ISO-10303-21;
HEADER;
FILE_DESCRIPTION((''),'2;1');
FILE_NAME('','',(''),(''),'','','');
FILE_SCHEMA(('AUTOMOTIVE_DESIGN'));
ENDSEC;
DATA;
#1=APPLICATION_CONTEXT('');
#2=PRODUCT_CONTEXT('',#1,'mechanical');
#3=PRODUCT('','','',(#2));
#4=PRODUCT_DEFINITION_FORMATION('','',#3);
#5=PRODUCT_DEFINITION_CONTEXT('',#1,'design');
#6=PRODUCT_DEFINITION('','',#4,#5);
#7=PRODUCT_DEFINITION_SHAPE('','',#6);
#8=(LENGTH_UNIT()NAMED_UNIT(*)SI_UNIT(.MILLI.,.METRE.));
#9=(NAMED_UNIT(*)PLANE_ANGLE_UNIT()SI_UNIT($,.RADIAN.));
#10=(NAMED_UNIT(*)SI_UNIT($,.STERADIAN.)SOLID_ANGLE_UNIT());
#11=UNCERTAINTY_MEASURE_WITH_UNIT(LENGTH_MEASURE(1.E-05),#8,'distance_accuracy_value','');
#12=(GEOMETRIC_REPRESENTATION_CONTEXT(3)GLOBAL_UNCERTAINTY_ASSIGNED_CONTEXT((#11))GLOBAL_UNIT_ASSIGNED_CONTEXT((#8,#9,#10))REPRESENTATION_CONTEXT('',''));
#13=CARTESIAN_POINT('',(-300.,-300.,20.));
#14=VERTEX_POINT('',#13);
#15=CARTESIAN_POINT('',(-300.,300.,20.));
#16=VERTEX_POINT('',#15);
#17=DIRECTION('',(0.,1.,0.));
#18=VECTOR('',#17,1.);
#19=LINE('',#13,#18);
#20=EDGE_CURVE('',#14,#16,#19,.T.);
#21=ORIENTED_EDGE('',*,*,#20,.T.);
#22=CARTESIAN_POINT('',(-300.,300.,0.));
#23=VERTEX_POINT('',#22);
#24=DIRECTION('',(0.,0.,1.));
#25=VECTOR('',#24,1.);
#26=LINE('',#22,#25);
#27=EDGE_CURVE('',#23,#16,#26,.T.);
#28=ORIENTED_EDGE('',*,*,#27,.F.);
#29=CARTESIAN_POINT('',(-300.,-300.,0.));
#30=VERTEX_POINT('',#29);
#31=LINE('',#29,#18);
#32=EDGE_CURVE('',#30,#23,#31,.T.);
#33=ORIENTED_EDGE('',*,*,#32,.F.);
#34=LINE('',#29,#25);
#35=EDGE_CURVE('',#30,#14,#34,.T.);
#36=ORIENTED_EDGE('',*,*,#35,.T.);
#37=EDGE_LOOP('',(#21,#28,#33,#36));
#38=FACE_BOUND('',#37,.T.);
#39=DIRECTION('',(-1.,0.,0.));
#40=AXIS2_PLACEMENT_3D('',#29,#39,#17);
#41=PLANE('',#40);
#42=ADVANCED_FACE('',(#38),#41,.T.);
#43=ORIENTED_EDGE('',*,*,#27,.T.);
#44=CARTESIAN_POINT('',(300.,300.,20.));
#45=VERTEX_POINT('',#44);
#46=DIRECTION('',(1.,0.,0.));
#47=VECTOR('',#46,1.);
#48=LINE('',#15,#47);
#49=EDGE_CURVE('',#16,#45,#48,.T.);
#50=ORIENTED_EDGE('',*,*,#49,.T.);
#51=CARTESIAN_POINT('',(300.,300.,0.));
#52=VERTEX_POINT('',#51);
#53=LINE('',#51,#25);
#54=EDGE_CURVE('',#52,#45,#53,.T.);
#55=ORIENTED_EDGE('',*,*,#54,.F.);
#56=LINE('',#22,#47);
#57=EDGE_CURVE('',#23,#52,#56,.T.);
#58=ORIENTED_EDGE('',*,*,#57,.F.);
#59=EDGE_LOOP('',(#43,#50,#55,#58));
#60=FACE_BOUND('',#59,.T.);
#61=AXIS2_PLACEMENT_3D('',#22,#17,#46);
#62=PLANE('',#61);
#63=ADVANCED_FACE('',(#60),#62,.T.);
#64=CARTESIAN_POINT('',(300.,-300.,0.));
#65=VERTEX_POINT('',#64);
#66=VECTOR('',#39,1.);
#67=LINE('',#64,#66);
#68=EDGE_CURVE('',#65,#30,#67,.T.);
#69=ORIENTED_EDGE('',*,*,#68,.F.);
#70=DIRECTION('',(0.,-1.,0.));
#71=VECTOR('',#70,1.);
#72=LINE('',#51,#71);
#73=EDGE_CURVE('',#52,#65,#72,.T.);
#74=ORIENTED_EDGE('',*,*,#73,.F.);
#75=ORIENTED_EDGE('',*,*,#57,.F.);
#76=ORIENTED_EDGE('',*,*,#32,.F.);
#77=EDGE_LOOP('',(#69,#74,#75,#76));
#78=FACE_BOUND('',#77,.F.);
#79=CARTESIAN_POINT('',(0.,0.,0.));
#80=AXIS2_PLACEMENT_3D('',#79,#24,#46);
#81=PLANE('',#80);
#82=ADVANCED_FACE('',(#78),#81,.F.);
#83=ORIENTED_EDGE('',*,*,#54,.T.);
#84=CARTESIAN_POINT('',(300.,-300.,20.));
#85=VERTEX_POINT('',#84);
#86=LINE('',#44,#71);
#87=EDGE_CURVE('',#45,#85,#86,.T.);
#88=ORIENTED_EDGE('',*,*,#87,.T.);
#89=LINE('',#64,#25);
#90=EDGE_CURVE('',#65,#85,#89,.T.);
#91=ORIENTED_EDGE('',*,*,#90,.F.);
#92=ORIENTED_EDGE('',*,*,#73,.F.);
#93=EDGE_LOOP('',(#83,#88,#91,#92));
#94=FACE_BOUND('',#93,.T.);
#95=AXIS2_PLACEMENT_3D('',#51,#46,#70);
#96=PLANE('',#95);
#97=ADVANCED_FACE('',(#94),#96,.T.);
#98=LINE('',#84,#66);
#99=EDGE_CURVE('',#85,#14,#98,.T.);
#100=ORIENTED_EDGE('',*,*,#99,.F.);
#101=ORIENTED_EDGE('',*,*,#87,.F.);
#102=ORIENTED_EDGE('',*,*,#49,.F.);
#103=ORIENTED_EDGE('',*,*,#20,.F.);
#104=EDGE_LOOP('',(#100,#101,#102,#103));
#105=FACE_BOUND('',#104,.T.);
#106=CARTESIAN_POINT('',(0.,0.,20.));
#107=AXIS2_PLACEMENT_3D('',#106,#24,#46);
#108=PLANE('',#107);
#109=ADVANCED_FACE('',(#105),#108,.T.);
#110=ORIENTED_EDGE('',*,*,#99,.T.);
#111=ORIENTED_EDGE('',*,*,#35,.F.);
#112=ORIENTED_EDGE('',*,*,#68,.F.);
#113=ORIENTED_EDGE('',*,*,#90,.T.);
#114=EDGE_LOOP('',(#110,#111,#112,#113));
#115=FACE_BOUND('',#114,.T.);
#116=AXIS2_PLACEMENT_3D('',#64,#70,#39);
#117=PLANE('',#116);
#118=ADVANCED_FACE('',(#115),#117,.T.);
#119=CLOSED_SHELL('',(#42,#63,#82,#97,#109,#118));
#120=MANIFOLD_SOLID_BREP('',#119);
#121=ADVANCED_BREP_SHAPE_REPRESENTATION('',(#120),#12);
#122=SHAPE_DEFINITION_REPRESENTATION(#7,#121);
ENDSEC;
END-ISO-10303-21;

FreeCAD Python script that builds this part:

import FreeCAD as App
import Part
import Sketcher
from FreeCAD import Vector


def add_polygon(sketch, points):
    """Adds a closed chain of lines whose ends are joined by coincident constraints."""
    first, n = sketch.GeometryCount, len(points)
    for a, b in zip(points, points[1:] + points[:1]):
        sketch.addGeometry(Part.LineSegment(App.Vector(*a, 0), App.Vector(*b, 0)), False)
    for i in range(n):
        sketch.addConstraint(Sketcher.Constraint("Coincident", first + i, 2, first + (i + 1) % n, 1))

doc = App.newDocument("Part")
body = doc.addObject("PartDesign::Body", "Body")

sketch1 = body.newObject("Sketcher::SketchObject", "Sketch")
sketch1.AttachmentSupport = (doc.getObject("XY_Plane"), [""])
sketch1.MapMode = "FlatFace"
add_polygon(sketch1, [(300, 300), (-300, 300), (-300, -300), (300, -300)])
sketch1.addConstraint([
    Sketcher.Constraint("Horizontal", 0),
    Sketcher.Constraint("Vertical", 1),
    Sketcher.Constraint("Horizontal", 2),
    Sketcher.Constraint("Vertical", 3),
    Sketcher.Constraint("Symmetric", 0, 2, 2, 2, -1, 1),
    Sketcher.Constraint("Equal", 2, 1),
    Sketcher.Constraint("DistanceX", 0, 2, 0, 1, 600.0),
])
pad1 = body.newObject("PartDesign::Pad", "Pad")
pad1.Profile = sketch1
pad1.Length = 20

doc.recompute()
